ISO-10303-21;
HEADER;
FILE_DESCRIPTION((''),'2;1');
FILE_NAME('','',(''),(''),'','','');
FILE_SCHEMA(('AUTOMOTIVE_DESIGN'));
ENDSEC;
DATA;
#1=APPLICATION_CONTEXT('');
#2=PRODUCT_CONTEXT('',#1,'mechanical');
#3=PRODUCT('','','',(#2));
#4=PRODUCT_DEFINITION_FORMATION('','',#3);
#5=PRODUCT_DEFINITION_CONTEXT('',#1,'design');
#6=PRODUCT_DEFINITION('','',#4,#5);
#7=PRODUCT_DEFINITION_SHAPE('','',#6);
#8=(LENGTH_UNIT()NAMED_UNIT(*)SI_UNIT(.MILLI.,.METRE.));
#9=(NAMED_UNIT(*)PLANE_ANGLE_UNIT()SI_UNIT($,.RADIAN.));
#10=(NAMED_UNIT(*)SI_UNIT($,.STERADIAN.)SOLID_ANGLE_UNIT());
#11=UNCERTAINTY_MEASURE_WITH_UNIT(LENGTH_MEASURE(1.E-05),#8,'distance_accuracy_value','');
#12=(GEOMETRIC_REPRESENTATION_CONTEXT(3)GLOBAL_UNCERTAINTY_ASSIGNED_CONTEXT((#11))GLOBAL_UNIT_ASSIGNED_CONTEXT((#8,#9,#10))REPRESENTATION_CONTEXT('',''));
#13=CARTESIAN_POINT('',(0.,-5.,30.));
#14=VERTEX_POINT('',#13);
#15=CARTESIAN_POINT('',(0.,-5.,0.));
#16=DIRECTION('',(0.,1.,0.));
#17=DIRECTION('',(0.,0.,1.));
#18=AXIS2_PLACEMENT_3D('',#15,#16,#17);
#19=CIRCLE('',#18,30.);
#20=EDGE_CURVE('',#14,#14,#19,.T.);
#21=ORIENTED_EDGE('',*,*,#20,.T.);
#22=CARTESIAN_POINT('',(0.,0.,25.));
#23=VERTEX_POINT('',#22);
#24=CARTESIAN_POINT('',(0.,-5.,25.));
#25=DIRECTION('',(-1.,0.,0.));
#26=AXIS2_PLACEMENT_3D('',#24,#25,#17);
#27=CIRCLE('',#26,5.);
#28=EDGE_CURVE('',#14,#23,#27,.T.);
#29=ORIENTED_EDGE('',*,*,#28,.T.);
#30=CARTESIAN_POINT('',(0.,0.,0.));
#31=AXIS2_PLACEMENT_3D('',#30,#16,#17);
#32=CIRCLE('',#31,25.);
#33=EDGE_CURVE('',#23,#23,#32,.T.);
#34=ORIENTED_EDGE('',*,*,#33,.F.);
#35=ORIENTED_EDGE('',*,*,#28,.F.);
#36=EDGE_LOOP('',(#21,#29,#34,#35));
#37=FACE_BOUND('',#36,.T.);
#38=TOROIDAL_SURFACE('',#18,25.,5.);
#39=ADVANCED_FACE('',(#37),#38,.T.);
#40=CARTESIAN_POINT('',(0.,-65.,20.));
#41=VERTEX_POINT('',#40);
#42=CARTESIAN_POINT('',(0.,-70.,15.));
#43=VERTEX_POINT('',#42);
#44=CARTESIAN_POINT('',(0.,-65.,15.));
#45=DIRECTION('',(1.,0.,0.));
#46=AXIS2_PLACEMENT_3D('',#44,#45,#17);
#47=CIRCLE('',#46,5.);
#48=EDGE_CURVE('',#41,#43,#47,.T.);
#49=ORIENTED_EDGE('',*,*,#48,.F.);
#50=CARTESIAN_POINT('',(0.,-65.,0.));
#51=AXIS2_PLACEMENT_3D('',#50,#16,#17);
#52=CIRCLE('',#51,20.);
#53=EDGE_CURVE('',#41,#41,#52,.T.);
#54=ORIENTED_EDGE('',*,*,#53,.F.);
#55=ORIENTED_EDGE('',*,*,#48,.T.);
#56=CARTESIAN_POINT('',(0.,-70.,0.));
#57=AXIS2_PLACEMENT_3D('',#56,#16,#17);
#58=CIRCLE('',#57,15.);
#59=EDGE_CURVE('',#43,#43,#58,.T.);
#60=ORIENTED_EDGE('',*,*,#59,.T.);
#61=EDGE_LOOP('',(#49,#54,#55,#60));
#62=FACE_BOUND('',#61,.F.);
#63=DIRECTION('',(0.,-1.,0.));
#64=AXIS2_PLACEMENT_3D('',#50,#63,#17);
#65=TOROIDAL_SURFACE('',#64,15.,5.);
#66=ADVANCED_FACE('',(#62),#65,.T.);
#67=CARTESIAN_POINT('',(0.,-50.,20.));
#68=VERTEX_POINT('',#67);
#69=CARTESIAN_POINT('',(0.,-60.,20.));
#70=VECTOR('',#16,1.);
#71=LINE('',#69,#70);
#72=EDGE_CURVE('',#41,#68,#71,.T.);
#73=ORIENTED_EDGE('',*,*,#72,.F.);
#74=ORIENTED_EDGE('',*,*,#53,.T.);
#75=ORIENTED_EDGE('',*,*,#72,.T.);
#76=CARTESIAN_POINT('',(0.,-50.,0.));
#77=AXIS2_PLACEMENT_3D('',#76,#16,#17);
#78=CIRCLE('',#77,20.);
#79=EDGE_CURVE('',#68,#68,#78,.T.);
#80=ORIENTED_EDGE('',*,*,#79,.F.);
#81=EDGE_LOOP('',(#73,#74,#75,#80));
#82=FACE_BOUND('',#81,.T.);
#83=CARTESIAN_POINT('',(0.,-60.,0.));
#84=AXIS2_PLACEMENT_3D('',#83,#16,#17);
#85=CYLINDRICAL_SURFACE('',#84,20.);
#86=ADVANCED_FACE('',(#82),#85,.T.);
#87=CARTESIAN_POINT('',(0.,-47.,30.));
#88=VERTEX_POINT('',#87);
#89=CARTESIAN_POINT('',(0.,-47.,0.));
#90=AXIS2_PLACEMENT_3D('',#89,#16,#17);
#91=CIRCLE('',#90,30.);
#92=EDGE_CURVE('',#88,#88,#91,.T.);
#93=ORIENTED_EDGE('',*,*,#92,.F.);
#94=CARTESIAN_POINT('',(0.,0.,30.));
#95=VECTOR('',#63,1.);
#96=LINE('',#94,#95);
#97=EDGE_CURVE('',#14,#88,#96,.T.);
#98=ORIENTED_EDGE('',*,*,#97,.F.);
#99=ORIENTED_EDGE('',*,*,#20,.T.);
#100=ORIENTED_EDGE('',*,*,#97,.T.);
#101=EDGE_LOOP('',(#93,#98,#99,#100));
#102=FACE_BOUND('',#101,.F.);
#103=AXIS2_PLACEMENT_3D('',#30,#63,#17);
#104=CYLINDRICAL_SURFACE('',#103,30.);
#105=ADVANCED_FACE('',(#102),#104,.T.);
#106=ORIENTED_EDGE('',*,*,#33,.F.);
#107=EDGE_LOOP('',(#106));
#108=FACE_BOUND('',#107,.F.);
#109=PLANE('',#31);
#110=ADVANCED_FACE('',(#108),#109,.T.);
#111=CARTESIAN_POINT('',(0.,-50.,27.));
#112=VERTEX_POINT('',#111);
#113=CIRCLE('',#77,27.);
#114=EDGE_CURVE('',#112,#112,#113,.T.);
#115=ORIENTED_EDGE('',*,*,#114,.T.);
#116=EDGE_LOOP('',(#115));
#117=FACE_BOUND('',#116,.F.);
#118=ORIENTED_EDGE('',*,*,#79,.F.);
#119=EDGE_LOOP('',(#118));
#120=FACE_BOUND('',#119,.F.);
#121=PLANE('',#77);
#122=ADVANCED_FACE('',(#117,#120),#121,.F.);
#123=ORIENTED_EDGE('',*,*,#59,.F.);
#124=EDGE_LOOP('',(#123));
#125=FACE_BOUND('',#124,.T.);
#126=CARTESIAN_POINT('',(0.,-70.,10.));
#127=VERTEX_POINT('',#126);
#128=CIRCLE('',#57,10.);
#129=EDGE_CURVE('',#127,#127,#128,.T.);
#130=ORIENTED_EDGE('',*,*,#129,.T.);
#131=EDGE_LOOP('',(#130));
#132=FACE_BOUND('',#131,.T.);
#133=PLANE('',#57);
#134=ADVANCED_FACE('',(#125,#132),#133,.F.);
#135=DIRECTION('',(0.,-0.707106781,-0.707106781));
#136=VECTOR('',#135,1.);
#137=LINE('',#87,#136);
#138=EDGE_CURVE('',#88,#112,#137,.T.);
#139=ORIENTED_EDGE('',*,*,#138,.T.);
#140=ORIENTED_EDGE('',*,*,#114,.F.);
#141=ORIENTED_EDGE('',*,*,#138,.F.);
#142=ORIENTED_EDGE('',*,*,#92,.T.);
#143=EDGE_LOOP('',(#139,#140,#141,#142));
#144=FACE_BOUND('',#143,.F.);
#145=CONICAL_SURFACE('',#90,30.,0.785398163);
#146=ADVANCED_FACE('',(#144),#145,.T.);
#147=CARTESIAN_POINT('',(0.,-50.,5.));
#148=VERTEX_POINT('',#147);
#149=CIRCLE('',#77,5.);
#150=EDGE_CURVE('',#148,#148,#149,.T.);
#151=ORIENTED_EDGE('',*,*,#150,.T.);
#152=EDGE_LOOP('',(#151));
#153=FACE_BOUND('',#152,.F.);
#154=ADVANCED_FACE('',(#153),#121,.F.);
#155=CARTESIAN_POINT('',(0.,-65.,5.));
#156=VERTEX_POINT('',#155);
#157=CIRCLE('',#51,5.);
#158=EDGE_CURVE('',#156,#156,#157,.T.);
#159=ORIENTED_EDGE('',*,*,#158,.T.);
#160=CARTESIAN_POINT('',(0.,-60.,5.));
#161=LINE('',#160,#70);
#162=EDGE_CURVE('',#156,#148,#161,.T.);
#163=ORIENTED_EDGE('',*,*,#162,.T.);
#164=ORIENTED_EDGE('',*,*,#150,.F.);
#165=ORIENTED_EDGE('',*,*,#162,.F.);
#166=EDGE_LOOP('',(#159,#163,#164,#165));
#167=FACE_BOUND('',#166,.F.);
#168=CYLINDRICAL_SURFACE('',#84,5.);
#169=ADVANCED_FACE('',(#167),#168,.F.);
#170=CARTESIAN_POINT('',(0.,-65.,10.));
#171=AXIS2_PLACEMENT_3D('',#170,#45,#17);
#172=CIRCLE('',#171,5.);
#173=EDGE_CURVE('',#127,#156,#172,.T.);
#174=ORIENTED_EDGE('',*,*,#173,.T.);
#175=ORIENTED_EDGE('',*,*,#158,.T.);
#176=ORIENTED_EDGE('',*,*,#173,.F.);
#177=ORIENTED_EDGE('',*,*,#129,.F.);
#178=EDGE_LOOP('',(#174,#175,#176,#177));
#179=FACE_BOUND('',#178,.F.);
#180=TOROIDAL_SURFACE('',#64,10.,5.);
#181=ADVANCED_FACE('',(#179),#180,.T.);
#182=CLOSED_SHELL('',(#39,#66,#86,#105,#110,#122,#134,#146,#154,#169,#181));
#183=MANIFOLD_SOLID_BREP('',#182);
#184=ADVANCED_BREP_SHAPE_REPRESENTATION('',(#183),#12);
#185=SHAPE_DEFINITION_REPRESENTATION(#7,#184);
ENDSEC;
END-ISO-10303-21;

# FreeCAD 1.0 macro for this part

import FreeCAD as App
import Part
import Sketcher

V = App.Vector
Q = App.Units.Quantity


def edges_at(feature, points):
    """Names of the edges that pass closest to the given points."""
    edges = feature.Shape.Edges
    near = lambda p: min(range(len(edges)), key=lambda i: edges[i].distToShape(Part.Vertex(*p))[0])
    return sorted({f"Edge{near(p) + 1}" for p in points})


def add_polygon(sketch, points):
    """Adds a closed chain of lines whose ends are joined by coincident constraints."""
    first, n = sketch.GeometryCount, len(points)
    for a, b in zip(points, points[1:] + points[:1]):
        sketch.addGeometry(Part.LineSegment(App.Vector(*a, 0), App.Vector(*b, 0)), False)
    for i in range(n):
        sketch.addConstraint(Sketcher.Constraint("Coincident", first + i, 2, first + (i + 1) % n, 1))

doc = App.newDocument("Part")
body = doc.addObject("PartDesign::Body", "Body")

# Sketch on YZ plane
sketch1 = doc.addObject("Sketcher::SketchObject", "Sketch")
body.addObject(sketch1)
sketch1.AttachmentSupport = (doc.YZ_Plane, [""])
sketch1.MapMode = "FlatFace"
add_polygon(sketch1, [(-70, 20), (-70, 5), (-50, 5), (-50, 0), (0, 0), (0, 30), (-50, 30), (-50, 20)])  # lines 0-7
sketch1.addConstraint([
    Sketcher.Constraint("Vertical", 0),
    Sketcher.Constraint("Horizontal", 1),
    Sketcher.Constraint("Vertical", 2),
    Sketcher.Constraint("Horizontal", 3),
    Sketcher.Constraint("Vertical", 4),
    Sketcher.Constraint("Horizontal", 5),
    Sketcher.Constraint("Vertical", 6),
    Sketcher.Constraint("Horizontal", 7),
    Sketcher.Constraint("Coincident", 3, 2, -1, 1),
    Sketcher.Constraint("Vertical", 2, 2, 5, 2),
    Sketcher.Constraint("DistanceX", 1, 1, 1, 2, Q("20 mm")),
    Sketcher.Constraint("DistanceX", 3, 1, 3, 2, Q("50 mm")),
    Sketcher.Constraint("DistanceY", 0, 2, 0, 1, Q("15 mm")),
    Sketcher.Constraint("DistanceY", 2, 2, 2, 1, Q("5 mm")),
    Sketcher.Constraint("DistanceY", 4, 1, 4, 2, Q("30 mm")),
])
revolution = doc.addObject("PartDesign::Revolution", "Revolution")
body.addObject(revolution)
revolution.Profile = sketch1
revolution.ReferenceAxis = (sketch1, ["H_Axis"])
revolution.Angle = 360
doc.recompute()

chamfer = doc.addObject("PartDesign::Chamfer", "Chamfer")
body.addObject(chamfer)
chamfer.Base = (revolution, edges_at(revolution, [(0, -50, -30)]))
chamfer.Size = 3
doc.recompute()

fillet = doc.addObject("PartDesign::Fillet", "Fillet")
body.addObject(fillet)
fillet.Base = (chamfer, edges_at(chamfer, [(0, -70, -20), (0, -70, -5), (0, 0, -30)]))
fillet.Radius = 5

doc.recompute()
